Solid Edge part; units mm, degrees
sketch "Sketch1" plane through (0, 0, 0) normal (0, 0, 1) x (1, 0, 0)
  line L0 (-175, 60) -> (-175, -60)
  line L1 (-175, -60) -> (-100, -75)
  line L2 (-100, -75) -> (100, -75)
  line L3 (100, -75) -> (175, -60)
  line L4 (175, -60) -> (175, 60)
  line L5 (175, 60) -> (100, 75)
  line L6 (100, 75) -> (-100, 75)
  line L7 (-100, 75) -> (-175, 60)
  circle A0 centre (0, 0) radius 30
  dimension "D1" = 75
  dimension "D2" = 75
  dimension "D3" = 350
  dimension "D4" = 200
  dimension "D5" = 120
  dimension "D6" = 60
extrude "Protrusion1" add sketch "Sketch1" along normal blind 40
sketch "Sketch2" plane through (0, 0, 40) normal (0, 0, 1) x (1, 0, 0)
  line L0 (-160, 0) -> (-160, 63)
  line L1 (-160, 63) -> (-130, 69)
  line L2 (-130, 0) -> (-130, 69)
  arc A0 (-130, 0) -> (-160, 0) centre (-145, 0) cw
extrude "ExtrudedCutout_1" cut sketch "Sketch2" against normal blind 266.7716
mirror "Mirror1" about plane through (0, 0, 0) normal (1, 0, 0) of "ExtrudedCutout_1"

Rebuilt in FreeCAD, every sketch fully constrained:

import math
import FreeCAD as App
import Part
import Sketcher
from FreeCAD import Vector


def add_polygon(sketch, points):
    """Adds a closed chain of lines whose ends are joined by coincident constraints."""
    first, n = sketch.GeometryCount, len(points)
    for a, b in zip(points, points[1:] + points[:1]):
        sketch.addGeometry(Part.LineSegment(App.Vector(*a, 0), App.Vector(*b, 0)), False)
    for i in range(n):
        sketch.addConstraint(Sketcher.Constraint("Coincident", first + i, 2, first + (i + 1) % n, 1))

doc = App.newDocument("Part")
body = doc.addObject("PartDesign::Body", "Body")

# Sketch on XY plane
sketch1 = body.newObject("Sketcher::SketchObject", "Sketch")
sketch1.AttachmentSupport = (doc.getObject("XY_Plane"), [""])
sketch1.MapMode = "FlatFace"
add_polygon(sketch1, [(-100, 75), (-175, 60), (-175, -60), (-100, -75), (100, -75), (175, -60), (175, 60), (100, 75)])  # lines 0-7
sketch1.addGeometry(Part.Circle(Vector(0, 0, 0), Vector(0, 0, 1), 30), False)  # 8
sketch1.addConstraint(Sketcher.Constraint("Vertical", 1))
sketch1.addConstraint(Sketcher.Constraint("Horizontal", 3))
sketch1.addConstraint(Sketcher.Constraint("Vertical", 5))
sketch1.addConstraint(Sketcher.Constraint("Horizontal", 7))
sketch1.addConstraint(Sketcher.Constraint("Coincident", 8, 3, -1, 1))
sketch1.addConstraint(Sketcher.Constraint("Symmetric", 0, 2, 4, 2, -1, 1))
sketch1.addConstraint(Sketcher.Constraint("Symmetric", 2, 2, 6, 2, -1, 1))
sketch1.addConstraint(Sketcher.Constraint("Parallel", 0, 4))
sketch1.addConstraint(Sketcher.Constraint("Parallel", 2, 6))
sketch1.addConstraint(Sketcher.Constraint("Horizontal", 1, 2, 4, 2))
sketch1.addConstraint(Sketcher.Constraint("Vertical", 3, 2, 6, 2))
sketch1.addConstraint(Sketcher.Constraint("Diameter", 8, 60.0))
sketch1.addConstraint(Sketcher.Constraint("DistanceX", 0, 2, -1, 1, 175.0))
sketch1.addConstraint(Sketcher.Constraint("DistanceX", 2, 2, -1, 1, 100.0))
sketch1.addConstraint(Sketcher.Constraint("DistanceY", 1, 2, 1, 1, 120.0))
sketch1.addConstraint(Sketcher.Constraint("DistanceY", 2, 2, -1, 1, 75.0))
pad1 = body.newObject("PartDesign::Pad", "Pad")
pad1.Profile = sketch1
pad1.Length = 40

# Sketch on XY plane
sketch2 = body.newObject("Sketcher::SketchObject", "Sketch001")
sketch2.AttachmentSupport = (doc.getObject("XY_Plane"), [""])
sketch2.MapMode = "FlatFace"
sketch2.AttachmentOffset = App.Placement(Vector(0, 0, 40), App.Rotation())
sketch2.addGeometry(Part.LineSegment(Vector(-160, 63, 0), Vector(-160, 0, 0)), False)
sketch2.addGeometry(Part.ArcOfCircle(Part.Circle(Vector(-145, 0, 0), Vector(0, 0, 1), 15), math.radians(180), math.radians(360)), False)
sketch2.addGeometry(Part.LineSegment(Vector(-130, 0, 0), Vector(-130, 69, 0)), False)
sketch2.addGeometry(Part.LineSegment(Vector(-130, 69, 0), Vector(-160, 63, 0)), False)
sketch2.addConstraint(Sketcher.Constraint("Tangent", 0, 2, 1, 1))
sketch2.addConstraint(Sketcher.Constraint("Tangent", 1, 2, 2, 1))
sketch2.addConstraint(Sketcher.Constraint("Coincident", 2, 2, 3, 1))
sketch2.addConstraint(Sketcher.Constraint("Coincident", 3, 2, 0, 1))
sketch2.addConstraint(Sketcher.Constraint("Vertical", 0))
sketch2.addConstraint(Sketcher.Constraint("Vertical", 2))
sketch2.addConstraint(Sketcher.Constraint("PointOnObject", 1, 3, -1))
sketch2.addConstraint(Sketcher.Constraint("Radius", 1, 15.0))
sketch2.addConstraint(Sketcher.Constraint("DistanceY", 0, 2, 0, 1, 63.0))
sketch2.addConstraint(Sketcher.Constraint("DistanceY", 2, 1, 2, 2, 69.0))
sketch2.addConstraint(Sketcher.Constraint("DistanceX", 1, 3, -1, 1, 145.0))
pocket1 = body.newObject("PartDesign::Pocket", "Pocket")
pocket1.Profile = sketch2
pocket1.Length = 266.7716
doc.recompute()

mirrored = body.newObject("PartDesign::Mirrored", "Mirrored")
mirrored.Originals = [pocket1]
mirrored.MirrorPlane = (doc.getObject("YZ_Plane"), [""])
body.Tip = mirrored

doc.recompute()
